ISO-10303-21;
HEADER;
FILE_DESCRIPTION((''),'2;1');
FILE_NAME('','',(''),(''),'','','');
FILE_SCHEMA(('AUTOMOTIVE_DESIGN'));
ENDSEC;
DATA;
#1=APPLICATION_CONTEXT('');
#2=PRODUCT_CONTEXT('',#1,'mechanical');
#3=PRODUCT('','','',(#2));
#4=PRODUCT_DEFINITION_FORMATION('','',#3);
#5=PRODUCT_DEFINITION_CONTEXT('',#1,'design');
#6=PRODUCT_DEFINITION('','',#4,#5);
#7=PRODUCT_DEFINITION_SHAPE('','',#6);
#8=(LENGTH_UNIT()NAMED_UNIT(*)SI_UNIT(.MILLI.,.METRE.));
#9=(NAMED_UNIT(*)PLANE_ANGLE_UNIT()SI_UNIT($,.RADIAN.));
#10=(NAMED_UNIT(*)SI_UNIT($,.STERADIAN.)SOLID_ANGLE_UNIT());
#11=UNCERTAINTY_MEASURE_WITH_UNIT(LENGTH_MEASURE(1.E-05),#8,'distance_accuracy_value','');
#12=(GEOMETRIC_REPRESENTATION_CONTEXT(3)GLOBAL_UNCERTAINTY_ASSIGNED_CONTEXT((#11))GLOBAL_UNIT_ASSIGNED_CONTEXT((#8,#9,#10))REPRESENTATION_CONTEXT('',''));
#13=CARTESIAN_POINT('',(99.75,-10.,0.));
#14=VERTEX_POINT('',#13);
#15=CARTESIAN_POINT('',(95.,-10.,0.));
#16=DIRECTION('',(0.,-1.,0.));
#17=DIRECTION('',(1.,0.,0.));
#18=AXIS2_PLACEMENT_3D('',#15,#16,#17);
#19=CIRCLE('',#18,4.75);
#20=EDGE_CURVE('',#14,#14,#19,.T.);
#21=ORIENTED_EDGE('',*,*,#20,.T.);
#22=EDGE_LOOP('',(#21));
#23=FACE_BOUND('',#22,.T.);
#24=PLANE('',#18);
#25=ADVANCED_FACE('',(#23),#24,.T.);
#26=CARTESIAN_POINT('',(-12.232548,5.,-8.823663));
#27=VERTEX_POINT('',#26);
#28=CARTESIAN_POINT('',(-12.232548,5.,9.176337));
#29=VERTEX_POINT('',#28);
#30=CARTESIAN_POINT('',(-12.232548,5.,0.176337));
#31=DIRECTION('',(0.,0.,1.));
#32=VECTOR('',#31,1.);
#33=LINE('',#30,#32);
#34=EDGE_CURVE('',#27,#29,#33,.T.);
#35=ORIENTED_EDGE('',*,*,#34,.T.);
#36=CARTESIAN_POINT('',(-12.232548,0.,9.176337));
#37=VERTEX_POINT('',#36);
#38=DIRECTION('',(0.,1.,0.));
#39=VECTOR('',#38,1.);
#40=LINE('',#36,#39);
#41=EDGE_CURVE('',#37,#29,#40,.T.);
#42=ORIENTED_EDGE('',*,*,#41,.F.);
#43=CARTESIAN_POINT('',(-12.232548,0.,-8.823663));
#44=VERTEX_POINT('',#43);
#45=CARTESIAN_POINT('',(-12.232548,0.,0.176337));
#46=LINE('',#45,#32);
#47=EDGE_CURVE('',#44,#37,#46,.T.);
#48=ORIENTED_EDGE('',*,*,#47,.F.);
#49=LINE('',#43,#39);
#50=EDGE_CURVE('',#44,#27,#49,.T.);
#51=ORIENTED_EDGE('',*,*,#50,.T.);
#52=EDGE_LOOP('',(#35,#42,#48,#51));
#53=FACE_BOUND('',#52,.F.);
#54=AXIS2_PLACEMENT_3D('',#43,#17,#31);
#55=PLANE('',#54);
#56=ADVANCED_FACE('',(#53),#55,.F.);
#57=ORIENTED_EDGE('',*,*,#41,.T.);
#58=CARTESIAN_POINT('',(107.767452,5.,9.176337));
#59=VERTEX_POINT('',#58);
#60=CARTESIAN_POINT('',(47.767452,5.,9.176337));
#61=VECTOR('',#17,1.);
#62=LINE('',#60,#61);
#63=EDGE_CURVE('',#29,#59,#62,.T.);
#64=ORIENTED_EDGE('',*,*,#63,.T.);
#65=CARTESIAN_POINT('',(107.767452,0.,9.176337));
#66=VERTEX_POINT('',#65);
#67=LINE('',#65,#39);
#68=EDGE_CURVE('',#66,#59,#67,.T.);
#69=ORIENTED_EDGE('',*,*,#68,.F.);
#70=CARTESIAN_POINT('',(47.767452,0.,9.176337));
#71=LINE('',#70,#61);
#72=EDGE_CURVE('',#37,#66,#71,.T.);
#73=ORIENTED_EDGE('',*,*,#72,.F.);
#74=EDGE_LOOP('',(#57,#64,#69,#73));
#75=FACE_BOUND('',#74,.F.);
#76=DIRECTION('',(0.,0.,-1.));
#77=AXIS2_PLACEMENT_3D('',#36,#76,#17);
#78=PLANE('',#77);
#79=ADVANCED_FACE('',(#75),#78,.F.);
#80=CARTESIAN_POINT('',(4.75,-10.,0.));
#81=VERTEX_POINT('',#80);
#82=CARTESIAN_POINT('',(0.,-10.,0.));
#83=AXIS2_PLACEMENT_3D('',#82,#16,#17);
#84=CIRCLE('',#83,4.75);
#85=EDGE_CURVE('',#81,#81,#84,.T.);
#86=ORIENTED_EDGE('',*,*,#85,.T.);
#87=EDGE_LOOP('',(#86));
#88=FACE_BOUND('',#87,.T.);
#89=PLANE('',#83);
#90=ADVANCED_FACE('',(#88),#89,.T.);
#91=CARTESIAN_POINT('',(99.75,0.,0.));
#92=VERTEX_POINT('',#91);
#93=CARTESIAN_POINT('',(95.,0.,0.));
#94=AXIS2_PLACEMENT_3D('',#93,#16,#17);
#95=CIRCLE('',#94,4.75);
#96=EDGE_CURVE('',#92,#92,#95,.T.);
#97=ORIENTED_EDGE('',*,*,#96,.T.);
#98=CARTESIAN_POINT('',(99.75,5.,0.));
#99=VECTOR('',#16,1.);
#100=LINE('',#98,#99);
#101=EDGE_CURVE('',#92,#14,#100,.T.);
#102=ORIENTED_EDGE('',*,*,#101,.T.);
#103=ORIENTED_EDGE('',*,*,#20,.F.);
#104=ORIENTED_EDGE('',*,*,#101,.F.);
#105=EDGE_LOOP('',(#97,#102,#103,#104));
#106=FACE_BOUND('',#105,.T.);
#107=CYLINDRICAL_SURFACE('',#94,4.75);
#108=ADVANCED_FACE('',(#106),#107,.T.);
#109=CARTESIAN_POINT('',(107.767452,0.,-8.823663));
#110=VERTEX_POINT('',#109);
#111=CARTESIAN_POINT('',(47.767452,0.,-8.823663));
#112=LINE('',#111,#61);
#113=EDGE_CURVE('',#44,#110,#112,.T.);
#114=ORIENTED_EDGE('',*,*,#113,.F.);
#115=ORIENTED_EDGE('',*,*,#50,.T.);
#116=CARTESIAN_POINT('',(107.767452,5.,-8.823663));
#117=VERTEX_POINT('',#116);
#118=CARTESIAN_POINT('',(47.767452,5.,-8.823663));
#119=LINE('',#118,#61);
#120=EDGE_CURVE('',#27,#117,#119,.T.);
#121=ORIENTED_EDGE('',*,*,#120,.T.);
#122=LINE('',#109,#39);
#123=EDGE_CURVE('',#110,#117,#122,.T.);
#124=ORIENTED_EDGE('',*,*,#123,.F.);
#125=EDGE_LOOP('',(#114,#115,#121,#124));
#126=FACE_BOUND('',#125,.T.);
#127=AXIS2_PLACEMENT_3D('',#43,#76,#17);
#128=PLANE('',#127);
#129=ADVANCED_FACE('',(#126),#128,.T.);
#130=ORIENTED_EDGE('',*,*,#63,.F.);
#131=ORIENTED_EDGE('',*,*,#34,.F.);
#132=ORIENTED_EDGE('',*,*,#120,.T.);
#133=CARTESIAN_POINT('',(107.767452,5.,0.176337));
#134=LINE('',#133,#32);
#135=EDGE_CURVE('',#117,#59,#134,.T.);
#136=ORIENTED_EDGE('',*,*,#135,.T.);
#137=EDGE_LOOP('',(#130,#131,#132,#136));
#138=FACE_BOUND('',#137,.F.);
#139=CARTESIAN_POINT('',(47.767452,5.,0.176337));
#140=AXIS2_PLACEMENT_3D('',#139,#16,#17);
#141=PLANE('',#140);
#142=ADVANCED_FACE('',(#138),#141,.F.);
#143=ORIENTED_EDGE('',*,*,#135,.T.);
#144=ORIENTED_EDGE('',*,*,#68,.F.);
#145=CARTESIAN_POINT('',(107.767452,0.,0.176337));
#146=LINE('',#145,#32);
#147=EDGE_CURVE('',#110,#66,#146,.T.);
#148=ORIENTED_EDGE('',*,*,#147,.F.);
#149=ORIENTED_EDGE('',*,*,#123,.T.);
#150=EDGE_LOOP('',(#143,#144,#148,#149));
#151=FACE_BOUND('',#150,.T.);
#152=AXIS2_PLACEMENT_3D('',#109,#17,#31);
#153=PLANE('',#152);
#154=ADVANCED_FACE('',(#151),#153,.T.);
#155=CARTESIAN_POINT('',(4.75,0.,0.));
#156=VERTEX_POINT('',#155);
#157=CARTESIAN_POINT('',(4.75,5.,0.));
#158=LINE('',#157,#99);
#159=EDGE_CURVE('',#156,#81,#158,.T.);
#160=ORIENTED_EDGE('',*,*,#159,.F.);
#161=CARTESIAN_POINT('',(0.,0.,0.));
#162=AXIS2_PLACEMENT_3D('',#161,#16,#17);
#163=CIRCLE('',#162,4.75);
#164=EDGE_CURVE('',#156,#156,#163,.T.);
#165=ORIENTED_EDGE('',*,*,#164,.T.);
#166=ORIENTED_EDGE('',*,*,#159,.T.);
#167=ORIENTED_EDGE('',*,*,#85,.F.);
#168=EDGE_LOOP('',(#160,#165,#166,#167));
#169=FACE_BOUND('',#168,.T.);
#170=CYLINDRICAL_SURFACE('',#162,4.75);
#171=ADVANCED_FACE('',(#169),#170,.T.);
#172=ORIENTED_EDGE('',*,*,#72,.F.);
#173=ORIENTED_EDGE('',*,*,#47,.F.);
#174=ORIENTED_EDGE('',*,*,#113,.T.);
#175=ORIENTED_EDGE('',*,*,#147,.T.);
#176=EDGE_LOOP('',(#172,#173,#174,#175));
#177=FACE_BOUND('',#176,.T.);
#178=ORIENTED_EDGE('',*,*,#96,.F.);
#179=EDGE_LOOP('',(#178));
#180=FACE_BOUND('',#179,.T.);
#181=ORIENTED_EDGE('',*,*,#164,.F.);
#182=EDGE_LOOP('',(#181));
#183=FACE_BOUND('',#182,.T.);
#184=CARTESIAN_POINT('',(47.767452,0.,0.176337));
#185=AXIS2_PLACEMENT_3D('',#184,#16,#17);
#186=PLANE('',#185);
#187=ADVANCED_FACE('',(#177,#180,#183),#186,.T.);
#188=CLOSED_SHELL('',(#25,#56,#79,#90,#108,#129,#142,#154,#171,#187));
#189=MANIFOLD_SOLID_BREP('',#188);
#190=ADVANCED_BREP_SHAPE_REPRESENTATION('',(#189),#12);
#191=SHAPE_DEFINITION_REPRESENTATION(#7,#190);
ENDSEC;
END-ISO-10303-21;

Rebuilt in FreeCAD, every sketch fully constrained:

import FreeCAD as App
import Part
import Sketcher

doc = App.newDocument("Part")
body = doc.addObject("PartDesign::Body", "Body")

# Sketch on XZ plane
sketch1 = body.newObject("Sketcher::SketchObject", "Sketch")
sketch1.AttachmentSupport = (doc.getObject("XZ_Plane"), [""])
sketch1.MapMode = "FlatFace"
sketch1.addGeometry(Part.Circle(App.Vector(0, 0, 0), App.Vector(0, 0, 1), 4.8), False)
sketch1.addConstraint([
    Sketcher.Constraint("Coincident", 0, 3, -1, 1),
    Sketcher.Constraint("Diameter", 0, 9.5),
])
pad1 = body.newObject("PartDesign::Pad", "Pad")
pad1.Profile = sketch1
pad1.Type = "TwoLengths"
pad1.Length = 10
pad1.Length2 = 5
body2 = doc.addObject("PartDesign::Body", "Body001")

# Sketch on XZ plane
sketch2 = body2.newObject("Sketcher::SketchObject", "Sketch001")
sketch2.AttachmentSupport = (doc.getObject("XZ_Plane001"), [""])
sketch2.MapMode = "FlatFace"
sketch2.addGeometry(Part.Circle(App.Vector(95, 0, 0), App.Vector(0, 0, 1), 4.8), False)
sketch2.addConstraint([
    Sketcher.Constraint("PointOnObject", 0, 3, -1),
    Sketcher.Constraint("Diameter", 0, 9.5),
    Sketcher.Constraint("DistanceX", -1, 1, 0, 3, 95.0),
])
pad2 = body2.newObject("PartDesign::Pad", "Pad001")
pad2.Profile = sketch2
pad2.Type = "TwoLengths"
pad2.Length = 10
pad2.Length2 = 5
body.AllowCompound = True
doc.recompute()

boolean = body.newObject("PartDesign::Boolean", "Boolean")
boolean.Type = "Fuse"
boolean.addObjects([body2])

# Sketch on XZ plane
sketch3 = body.newObject("Sketcher::SketchObject", "Sketch002")
sketch3.AttachmentSupport = (doc.getObject("XZ_Plane"), [""])
sketch3.MapMode = "FlatFace"
sketch3.addGeometry([
    Part.LineSegment(App.Vector(-12.2, 9.2, 0), App.Vector(-12.2, -8.8, 0)),  # 0
    Part.LineSegment(App.Vector(-12.2, -8.8, 0), App.Vector(107.8, -8.8, 0)),  # 1
    Part.LineSegment(App.Vector(107.8, -8.8, 0), App.Vector(107.8, 9.2, 0)),  # 2
    Part.LineSegment(App.Vector(107.8, 9.2, 0), App.Vector(-12.2, 9.2, 0)),  # 3
    Part.Circle(App.Vector(0, 0, 0), App.Vector(0, 0, 1), 4.8),  # 4
    Part.Circle(App.Vector(95, 0, 0), App.Vector(0, 0, 1), 4.8),  # 5
], False)
sketch3.addConstraint([
    Sketcher.Constraint("Coincident", 0, 2, 1, 1),
    Sketcher.Constraint("Coincident", 1, 2, 2, 1),
    Sketcher.Constraint("Coincident", 2, 2, 3, 1),
    Sketcher.Constraint("Coincident", 3, 2, 0, 1),
    Sketcher.Constraint("Vertical", 0),
    Sketcher.Constraint("Horizontal", 1),
    Sketcher.Constraint("Vertical", 2),
    Sketcher.Constraint("Horizontal", 3),
    Sketcher.Constraint("Coincident", 4, 3, -1, 1),
    Sketcher.Constraint("Equal", 4, 5),
    Sketcher.Constraint("PointOnObject", 5, 3, -1),
    Sketcher.Constraint("Diameter", 4, 9.5),
    Sketcher.Constraint("DistanceX", 1, 1, 1, 2, 120.0),
    Sketcher.Constraint("DistanceY", 0, 2, 0, 1, 18.0),
    Sketcher.Constraint("DistanceX", -1, 1, 5, 3, 95.0),
    Sketcher.Constraint("DistanceX", 0, 2, -1, 1, 12.232548),
    Sketcher.Constraint("DistanceY", 0, 2, -1, 1, 8.823663),
])
pad3 = body.newObject("PartDesign::Pad", "Pad002")
pad3.Profile = sketch3
pad3.Length = 5
pad3.Reversed = True

doc.recompute()
